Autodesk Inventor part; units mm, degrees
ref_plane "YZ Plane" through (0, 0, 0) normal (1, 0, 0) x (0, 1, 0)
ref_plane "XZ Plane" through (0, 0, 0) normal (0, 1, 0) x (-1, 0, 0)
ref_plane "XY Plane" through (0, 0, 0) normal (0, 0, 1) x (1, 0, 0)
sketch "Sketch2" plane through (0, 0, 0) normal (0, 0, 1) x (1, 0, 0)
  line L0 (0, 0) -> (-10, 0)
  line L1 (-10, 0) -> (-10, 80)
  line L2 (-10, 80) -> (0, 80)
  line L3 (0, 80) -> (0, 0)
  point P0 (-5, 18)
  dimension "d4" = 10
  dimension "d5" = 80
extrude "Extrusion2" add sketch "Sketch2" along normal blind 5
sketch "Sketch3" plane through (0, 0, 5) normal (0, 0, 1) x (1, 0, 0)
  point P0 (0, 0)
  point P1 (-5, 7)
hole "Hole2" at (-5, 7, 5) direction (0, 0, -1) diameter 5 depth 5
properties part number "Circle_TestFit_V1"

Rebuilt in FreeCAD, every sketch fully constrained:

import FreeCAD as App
import Part
import Sketcher
Q = App.Units.Quantity


def add_polygon(sketch, points):
    """Adds a closed chain of lines whose ends are joined by coincident constraints."""
    first, n = sketch.GeometryCount, len(points)
    for a, b in zip(points, points[1:] + points[:1]):
        sketch.addGeometry(Part.LineSegment(App.Vector(*a, 0), App.Vector(*b, 0)), False)
    for i in range(n):
        sketch.addConstraint(Sketcher.Constraint("Coincident", first + i, 2, first + (i + 1) % n, 1))

doc = App.newDocument("Part")
params = doc.addObject("Spreadsheet::Sheet", "Params")
for row, (alias, value) in enumerate([
    ("sketch1_width", "10 mm"),
    ("sketch1_height", "80 mm"),
    ("pad1_length", "5 mm"),
    ("sketch2_diameter", "5 mm"),
    ("hole_diameter", "5 mm"),
    ("hole_depth", "5 mm"),
], start=1):
    params.set(f"A{row}", alias)
    params.set(f"B{row}", "=" + value)
    params.setAlias(f"B{row}", alias)

body = doc.addObject("PartDesign::Body", "Body")

# Sketch on XY plane
sketch1 = body.newObject("Sketcher::SketchObject", "Sketch")
sketch1.AttachmentSupport = (doc.getObject("XY_Plane"), [""])
sketch1.MapMode = "FlatFace"
add_polygon(sketch1, [(-10, 0), (0, 0), (0, 80), (-10, 80)])  # lines 0-3
sketch1.addConstraint(Sketcher.Constraint("Horizontal", 0))
sketch1.addConstraint(Sketcher.Constraint("Vertical", 1))
sketch1.addConstraint(Sketcher.Constraint("Horizontal", 2))
sketch1.addConstraint(Sketcher.Constraint("Vertical", 3))
sketch1.addConstraint(Sketcher.Constraint("Coincident", 0, 2, -1, 1))
sketch1.addConstraint(Sketcher.Constraint("DistanceX", 0, 1, 0, 2, Q("10 mm")))
sketch1.addConstraint(Sketcher.Constraint("DistanceY", 1, 1, 1, 2, Q("80 mm")))
sketch1.setExpression("Constraints[9]", "Params.sketch1_width")
sketch1.setExpression("Constraints[10]", "Params.sketch1_height")
pad1 = body.newObject("PartDesign::Pad", "Pad")
pad1.Profile = sketch1
pad1.setExpression("Length", "Params.pad1_length")

# Sketch on XY plane
sketch2 = body.newObject("Sketcher::SketchObject", "Sketch001")
sketch2.AttachmentSupport = (doc.getObject("XY_Plane"), [""])
sketch2.MapMode = "FlatFace"
sketch2.AttachmentOffset = App.Placement(App.Vector(0, 0, 5), App.Rotation())
sketch2.addGeometry(Part.Circle(App.Vector(-5, 7, 0), App.Vector(0, 0, 1), 2.5), False)
sketch2.addConstraint(Sketcher.Constraint("Diameter", 0, Q("5 mm")))
sketch2.addConstraint(Sketcher.Constraint("DistanceX", 0, 3, -1, 1, Q("5 mm")))
sketch2.addConstraint(Sketcher.Constraint("DistanceY", -1, 1, 0, 3, Q("7 mm")))
sketch2.setExpression("Constraints[0]", "Params.sketch2_diameter")
doc.recompute()
hole = body.newObject("PartDesign::Hole", "Hole")
hole.Profile = sketch2
hole.ThreadType = "None"
hole.setExpression("Diameter", "Params.hole_diameter")
hole.DepthType = "Dimension"
hole.setExpression("Depth", "Params.hole_depth")
hole.DrillPoint = "Flat"

doc.recompute()
